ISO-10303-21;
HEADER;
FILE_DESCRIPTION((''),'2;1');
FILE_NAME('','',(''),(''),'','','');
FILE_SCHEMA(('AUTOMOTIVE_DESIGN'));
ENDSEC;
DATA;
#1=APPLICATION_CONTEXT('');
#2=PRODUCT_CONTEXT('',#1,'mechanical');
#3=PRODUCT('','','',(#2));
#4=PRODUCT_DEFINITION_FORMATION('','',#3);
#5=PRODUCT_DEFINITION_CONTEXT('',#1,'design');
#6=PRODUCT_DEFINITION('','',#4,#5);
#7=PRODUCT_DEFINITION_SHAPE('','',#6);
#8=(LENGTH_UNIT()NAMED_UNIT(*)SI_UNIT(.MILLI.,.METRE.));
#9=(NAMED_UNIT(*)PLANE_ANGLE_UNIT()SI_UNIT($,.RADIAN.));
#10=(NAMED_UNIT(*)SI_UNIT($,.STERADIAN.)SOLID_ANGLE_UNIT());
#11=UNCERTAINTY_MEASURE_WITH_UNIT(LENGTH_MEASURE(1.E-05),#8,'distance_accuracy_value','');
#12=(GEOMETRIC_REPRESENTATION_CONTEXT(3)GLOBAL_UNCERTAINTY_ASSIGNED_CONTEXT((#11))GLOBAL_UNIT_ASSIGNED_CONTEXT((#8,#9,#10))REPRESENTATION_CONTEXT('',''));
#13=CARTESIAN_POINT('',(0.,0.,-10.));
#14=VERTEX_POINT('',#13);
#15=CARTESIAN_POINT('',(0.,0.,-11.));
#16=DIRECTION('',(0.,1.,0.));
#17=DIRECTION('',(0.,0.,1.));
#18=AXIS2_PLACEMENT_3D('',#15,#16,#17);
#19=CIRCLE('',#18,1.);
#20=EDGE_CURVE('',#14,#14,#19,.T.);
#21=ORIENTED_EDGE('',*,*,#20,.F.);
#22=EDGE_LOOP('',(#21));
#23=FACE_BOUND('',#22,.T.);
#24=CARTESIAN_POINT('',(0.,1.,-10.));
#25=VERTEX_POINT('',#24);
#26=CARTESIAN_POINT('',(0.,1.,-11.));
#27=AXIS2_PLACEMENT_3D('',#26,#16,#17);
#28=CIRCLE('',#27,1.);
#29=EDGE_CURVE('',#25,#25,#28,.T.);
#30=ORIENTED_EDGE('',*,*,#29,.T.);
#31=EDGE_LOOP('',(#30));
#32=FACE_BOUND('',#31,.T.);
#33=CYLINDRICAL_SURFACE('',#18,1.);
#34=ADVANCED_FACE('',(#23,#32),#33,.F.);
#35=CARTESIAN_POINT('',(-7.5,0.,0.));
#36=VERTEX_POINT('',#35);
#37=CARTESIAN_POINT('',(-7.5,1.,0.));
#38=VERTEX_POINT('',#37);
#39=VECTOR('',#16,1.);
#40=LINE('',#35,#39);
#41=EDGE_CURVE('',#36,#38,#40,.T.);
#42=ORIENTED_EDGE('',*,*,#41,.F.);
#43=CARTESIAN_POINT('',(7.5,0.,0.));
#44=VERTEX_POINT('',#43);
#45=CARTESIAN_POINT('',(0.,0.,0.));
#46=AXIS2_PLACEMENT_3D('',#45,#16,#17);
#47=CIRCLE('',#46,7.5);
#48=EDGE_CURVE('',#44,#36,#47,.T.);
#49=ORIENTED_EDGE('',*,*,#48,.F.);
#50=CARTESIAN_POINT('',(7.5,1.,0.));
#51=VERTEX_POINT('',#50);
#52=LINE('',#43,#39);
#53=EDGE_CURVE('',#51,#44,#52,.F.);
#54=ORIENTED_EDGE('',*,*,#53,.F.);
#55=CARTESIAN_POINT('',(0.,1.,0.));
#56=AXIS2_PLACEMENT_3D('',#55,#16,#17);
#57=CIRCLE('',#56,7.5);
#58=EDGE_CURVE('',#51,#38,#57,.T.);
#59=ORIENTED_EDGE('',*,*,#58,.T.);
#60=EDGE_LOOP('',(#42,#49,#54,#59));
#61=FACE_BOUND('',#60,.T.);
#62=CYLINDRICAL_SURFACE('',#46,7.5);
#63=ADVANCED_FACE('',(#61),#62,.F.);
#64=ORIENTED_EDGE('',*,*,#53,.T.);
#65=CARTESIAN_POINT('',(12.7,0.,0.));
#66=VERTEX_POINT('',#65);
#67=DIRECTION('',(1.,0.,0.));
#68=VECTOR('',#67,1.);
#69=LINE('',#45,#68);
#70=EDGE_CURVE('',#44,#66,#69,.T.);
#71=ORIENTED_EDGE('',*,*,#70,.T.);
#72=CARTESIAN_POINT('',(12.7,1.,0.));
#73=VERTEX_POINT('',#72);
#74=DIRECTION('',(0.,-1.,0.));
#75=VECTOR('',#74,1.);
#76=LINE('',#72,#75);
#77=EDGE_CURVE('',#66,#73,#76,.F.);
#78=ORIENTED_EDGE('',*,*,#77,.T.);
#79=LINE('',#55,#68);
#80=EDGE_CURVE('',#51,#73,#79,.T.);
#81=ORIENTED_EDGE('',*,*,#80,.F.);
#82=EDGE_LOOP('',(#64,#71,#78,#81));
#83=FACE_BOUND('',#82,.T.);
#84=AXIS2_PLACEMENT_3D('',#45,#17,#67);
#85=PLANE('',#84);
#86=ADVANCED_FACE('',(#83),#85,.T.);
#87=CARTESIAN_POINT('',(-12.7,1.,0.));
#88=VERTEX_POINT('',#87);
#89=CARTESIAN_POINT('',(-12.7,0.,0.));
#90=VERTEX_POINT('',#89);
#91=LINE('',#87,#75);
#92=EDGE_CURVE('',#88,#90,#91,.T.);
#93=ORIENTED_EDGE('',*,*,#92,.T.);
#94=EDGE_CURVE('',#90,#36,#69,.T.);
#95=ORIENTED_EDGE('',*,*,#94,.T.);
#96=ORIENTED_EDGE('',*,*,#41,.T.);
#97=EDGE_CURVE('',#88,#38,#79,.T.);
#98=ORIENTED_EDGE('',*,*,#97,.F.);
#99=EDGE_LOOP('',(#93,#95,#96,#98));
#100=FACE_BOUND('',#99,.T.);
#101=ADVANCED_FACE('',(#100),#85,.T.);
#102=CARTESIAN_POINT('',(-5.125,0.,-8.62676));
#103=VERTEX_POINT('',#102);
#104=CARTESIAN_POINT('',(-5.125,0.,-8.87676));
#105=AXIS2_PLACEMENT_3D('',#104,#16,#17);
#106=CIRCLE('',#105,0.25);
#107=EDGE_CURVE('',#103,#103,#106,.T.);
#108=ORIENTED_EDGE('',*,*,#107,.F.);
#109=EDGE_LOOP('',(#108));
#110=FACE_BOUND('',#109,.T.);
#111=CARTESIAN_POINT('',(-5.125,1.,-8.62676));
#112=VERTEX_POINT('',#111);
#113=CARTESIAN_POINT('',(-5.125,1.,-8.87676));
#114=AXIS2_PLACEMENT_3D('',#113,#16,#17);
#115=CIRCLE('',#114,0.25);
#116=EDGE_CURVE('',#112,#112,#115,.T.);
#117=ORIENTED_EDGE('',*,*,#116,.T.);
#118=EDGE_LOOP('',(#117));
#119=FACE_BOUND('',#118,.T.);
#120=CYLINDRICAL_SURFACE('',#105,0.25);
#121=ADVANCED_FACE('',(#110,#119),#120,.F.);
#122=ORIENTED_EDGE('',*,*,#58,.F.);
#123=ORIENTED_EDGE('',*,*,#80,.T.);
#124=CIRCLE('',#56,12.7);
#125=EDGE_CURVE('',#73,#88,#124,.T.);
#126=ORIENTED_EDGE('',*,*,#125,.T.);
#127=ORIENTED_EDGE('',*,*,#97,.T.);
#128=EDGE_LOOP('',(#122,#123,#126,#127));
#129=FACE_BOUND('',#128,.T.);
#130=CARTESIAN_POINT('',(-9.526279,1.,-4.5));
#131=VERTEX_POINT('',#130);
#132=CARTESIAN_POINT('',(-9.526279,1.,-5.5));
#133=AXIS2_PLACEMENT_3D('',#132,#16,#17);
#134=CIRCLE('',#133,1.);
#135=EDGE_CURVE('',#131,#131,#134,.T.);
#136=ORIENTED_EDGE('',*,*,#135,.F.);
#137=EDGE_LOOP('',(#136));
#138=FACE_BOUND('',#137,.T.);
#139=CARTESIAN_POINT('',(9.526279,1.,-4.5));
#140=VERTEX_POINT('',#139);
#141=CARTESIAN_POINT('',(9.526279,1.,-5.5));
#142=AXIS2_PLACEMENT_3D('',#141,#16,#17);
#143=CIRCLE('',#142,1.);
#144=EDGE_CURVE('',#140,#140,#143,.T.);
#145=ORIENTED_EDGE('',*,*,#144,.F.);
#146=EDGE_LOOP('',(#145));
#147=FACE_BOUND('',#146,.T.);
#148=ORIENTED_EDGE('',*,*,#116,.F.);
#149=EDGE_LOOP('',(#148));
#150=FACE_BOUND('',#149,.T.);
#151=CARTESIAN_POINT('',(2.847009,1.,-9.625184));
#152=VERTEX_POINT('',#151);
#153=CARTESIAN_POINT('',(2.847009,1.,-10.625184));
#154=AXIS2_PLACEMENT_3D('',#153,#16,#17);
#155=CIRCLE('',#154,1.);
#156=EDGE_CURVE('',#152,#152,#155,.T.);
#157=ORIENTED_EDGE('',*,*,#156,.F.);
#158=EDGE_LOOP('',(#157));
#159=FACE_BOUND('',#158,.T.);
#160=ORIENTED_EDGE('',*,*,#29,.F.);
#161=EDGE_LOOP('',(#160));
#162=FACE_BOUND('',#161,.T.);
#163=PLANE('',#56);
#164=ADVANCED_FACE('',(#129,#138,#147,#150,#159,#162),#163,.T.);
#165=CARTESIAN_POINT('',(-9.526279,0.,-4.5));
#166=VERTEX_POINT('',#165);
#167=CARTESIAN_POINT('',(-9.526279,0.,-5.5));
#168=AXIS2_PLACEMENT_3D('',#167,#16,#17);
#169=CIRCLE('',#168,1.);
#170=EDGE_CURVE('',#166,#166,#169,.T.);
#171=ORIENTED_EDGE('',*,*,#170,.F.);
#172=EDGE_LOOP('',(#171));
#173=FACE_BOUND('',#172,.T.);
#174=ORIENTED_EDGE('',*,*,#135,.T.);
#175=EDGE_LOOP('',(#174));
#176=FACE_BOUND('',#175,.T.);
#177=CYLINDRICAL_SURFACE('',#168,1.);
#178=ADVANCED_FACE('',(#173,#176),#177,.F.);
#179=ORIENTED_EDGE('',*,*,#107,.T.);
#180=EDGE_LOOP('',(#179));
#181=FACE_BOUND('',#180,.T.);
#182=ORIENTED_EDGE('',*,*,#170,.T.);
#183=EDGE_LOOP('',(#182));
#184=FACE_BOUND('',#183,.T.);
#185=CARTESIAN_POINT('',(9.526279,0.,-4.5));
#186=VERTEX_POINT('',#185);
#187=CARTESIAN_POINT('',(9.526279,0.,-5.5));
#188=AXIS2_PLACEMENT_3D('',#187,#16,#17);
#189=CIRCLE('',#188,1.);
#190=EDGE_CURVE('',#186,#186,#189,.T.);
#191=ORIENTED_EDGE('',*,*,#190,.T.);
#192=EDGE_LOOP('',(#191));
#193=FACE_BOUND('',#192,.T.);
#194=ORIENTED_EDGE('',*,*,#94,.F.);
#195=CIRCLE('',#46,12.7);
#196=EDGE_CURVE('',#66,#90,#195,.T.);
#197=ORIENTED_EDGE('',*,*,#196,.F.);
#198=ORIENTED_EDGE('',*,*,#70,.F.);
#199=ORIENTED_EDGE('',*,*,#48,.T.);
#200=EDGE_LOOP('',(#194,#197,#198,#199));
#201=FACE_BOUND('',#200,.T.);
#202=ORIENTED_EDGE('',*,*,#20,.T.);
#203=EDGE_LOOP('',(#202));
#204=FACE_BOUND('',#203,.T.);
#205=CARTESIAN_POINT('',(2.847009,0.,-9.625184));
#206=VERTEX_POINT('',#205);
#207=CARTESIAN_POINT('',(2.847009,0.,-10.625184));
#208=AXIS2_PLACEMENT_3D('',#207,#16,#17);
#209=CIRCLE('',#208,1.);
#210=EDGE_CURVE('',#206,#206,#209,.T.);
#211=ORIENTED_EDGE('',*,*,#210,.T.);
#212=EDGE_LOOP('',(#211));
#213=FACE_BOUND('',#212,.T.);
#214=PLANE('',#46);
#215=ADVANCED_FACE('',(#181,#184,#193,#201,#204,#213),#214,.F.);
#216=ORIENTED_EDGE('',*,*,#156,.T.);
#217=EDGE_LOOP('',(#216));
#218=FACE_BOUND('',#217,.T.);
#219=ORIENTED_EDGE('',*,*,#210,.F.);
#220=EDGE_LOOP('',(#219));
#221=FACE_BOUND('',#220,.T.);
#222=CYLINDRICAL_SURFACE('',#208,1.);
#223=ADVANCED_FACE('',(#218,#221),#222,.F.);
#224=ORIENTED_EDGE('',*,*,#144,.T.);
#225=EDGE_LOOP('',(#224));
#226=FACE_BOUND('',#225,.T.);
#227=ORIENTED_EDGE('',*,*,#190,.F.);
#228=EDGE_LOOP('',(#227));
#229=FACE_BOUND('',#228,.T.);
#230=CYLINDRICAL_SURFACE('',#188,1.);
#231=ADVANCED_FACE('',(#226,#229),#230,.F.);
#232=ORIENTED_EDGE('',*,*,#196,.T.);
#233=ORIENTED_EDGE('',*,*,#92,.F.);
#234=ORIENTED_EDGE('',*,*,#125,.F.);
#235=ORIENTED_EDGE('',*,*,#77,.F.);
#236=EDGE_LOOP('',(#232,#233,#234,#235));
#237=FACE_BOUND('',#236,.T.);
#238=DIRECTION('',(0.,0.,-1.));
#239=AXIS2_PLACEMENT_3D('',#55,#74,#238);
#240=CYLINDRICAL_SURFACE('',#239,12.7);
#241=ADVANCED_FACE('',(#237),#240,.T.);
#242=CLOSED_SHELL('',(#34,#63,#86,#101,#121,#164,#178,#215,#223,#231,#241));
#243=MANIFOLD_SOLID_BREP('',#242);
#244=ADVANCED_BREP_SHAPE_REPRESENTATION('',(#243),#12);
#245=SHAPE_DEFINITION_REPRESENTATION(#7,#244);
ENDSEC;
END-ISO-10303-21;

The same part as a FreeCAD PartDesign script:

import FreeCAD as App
import Part
import Sketcher
Q = App.Units.Quantity


def add_polygon(sketch, points):
    """Adds a closed chain of lines whose ends are joined by coincident constraints."""
    first, n = sketch.GeometryCount, len(points)
    for a, b in zip(points, points[1:] + points[:1]):
        sketch.addGeometry(Part.LineSegment(App.Vector(*a, 0), App.Vector(*b, 0)), False)
    for i in range(n):
        sketch.addConstraint(Sketcher.Constraint("Coincident", first + i, 2, first + (i + 1) % n, 1))

doc = App.newDocument("Part")
body = doc.addObject("PartDesign::Body", "Body")

# Sketch on XZ plane
sketch1 = body.newObject("Sketcher::SketchObject", "Sketch")
sketch1.AttachmentSupport = (doc.getObject("XZ_Plane"), [""])
sketch1.MapMode = "FlatFace"
sketch1.addGeometry(Part.Circle(App.Vector(0, 0, 0), App.Vector(0, 0, 1), 13), False)
sketch1.addConstraint([
    Sketcher.Constraint("Coincident", 0, 3, -1, 1),
    Sketcher.Constraint("Diameter", 0, Q("25.4 mm")),
])
pad1 = body.newObject("PartDesign::Pad", "Pad")
pad1.Profile = sketch1
pad1.Length = 1
pad1.Reversed = True

# Sketch on XZ plane
sketch2 = body.newObject("Sketcher::SketchObject", "Sketch001")
sketch2.AttachmentSupport = (doc.getObject("XZ_Plane"), [""])
sketch2.MapMode = "FlatFace"
sketch2.AttachmentOffset = App.Placement(App.Vector(0, 0, -1), App.Rotation())
sketch2.addGeometry([
    Part.Circle(App.Vector(0, -11, 0), App.Vector(0, 0, 1), 1),  # 0
    Part.Circle(App.Vector(9.5, -5.5, 0), App.Vector(0, 0, 1), 1),  # 1
    Part.Circle(App.Vector(9.5, 5.5, 0), App.Vector(0, 0, 1), 1),  # 2
    Part.Circle(App.Vector(0, 11, 0), App.Vector(0, 0, 1), 1),  # 3
    Part.Circle(App.Vector(-9.5, 5.5, 0), App.Vector(0, 0, 1), 1),  # 4
    Part.Circle(App.Vector(-9.5, -5.5, 0), App.Vector(0, 0, 1), 1),  # 5
], False)
sketch2.addConstraint([
    Sketcher.Constraint("Equal", 0, 1),
    Sketcher.Constraint("Equal", 1, 2),
    Sketcher.Constraint("Equal", 2, 3),
    Sketcher.Constraint("Equal", 3, 4),
    Sketcher.Constraint("Equal", 4, 5),
    Sketcher.Constraint("Symmetric", 0, 3, 3, 3, -1, 1),
    Sketcher.Constraint("Symmetric", 1, 3, 4, 3, -1, 1),
    Sketcher.Constraint("Symmetric", 2, 3, 5, 3, -1, 1),
    Sketcher.Constraint("Symmetric", 2, 3, 4, 3, -2),
    Sketcher.Constraint("PointOnObject", 0, 3, -2),
    Sketcher.Constraint("Diameter", 0, Q("2 mm")),
    Sketcher.Constraint("DistanceY", 0, 3, -1, 1, Q("11 mm")),
    Sketcher.Constraint("DistanceY", 1, 3, 2, 3, Q("11 mm")),
    Sketcher.Constraint("DistanceX", -1, 1, 1, 3, Q("9.526279 mm")),
])
pocket1 = body.newObject("PartDesign::Pocket", "Pocket")
pocket1.Profile = sketch2
pocket1.Type = "ThroughAll"
pocket1.Midplane = True

# Sketch on XZ plane
sketch3 = body.newObject("Sketcher::SketchObject", "Sketch002")
sketch3.AttachmentSupport = (doc.getObject("XZ_Plane"), [""])
sketch3.MapMode = "FlatFace"
sketch3.AttachmentOffset = App.Placement(App.Vector(0, 0, -1), App.Rotation())
sketch3.addGeometry(Part.Circle(App.Vector(0, 0, 0), App.Vector(0, 0, 1), 8), False)
sketch3.addConstraint([
    Sketcher.Constraint("Coincident", 0, 3, -1, 1),
    Sketcher.Constraint("Diameter", 0, Q("15 mm")),
])
pocket2 = body.newObject("PartDesign::Pocket", "Pocket001")
pocket2.Profile = sketch3
pocket2.Type = "ThroughAll"
pocket2.Midplane = True

# Sketch on XY plane
sketch4 = body.newObject("Sketcher::SketchObject", "Sketch003")
sketch4.AttachmentSupport = (doc.getObject("XY_Plane"), [""])
sketch4.MapMode = "FlatFace"
add_polygon(sketch4, [(-37, 32), (-37, -20), (29, -20), (29, 32)])  # lines 0-3
sketch4.addConstraint([
    Sketcher.Constraint("Vertical", 0),
    Sketcher.Constraint("Horizontal", 1),
    Sketcher.Constraint("Vertical", 2),
    Sketcher.Constraint("Horizontal", 3),
    Sketcher.Constraint("DistanceX", 1, 1, 1, 2, Q("65.874202 mm")),
    Sketcher.Constraint("DistanceY", 0, 2, 0, 1, Q("51.979274 mm")),
    Sketcher.Constraint("DistanceY", 0, 2, -1, 1, Q("19.66799 mm")),
    Sketcher.Constraint("DistanceX", 0, 2, -1, 1, Q("36.753256 mm")),
])
pocket3 = body.newObject("PartDesign::Pocket", "Pocket002")
pocket3.Profile = sketch4
pocket3.Type = "ThroughAll"
pocket3.Reversed = True

# Sketch on XZ plane
sketch5 = body.newObject("Sketcher::SketchObject", "Sketch004")
sketch5.AttachmentSupport = (doc.getObject("XZ_Plane"), [""])
sketch5.MapMode = "FlatFace"
sketch5.AttachmentOffset = App.Placement(App.Vector(0, 0, -1), App.Rotation())
sketch5.addGeometry([
    Part.Circle(App.Vector(2.85, -10.63, 0), App.Vector(0, 0, 1), 1),
    Part.Circle(App.Vector(-5.12, -8.88, 0), App.Vector(0, 0, 1), 0.25),
], False)
sketch5.addConstraint([
    Sketcher.Constraint("Diameter", 0, Q("2 mm")),
    Sketcher.Constraint("Diameter", 1, Q("0.5 mm")),
    Sketcher.Constraint("DistanceX", 1, 3, -1, 1, Q("5.125 mm")),
    Sketcher.Constraint("DistanceX", -1, 1, 0, 3, Q("2.847009 mm")),
    Sketcher.Constraint("DistanceY", 1, 3, -1, 1, Q("8.87676 mm")),
    Sketcher.Constraint("DistanceY", 0, 3, -1, 1, Q("10.625184 mm")),
])
pocket4 = body.newObject("PartDesign::Pocket", "Pocket003")
pocket4.Profile = sketch5
pocket4.Type = "ThroughAll"
pocket4.Midplane = True

doc.recompute()
